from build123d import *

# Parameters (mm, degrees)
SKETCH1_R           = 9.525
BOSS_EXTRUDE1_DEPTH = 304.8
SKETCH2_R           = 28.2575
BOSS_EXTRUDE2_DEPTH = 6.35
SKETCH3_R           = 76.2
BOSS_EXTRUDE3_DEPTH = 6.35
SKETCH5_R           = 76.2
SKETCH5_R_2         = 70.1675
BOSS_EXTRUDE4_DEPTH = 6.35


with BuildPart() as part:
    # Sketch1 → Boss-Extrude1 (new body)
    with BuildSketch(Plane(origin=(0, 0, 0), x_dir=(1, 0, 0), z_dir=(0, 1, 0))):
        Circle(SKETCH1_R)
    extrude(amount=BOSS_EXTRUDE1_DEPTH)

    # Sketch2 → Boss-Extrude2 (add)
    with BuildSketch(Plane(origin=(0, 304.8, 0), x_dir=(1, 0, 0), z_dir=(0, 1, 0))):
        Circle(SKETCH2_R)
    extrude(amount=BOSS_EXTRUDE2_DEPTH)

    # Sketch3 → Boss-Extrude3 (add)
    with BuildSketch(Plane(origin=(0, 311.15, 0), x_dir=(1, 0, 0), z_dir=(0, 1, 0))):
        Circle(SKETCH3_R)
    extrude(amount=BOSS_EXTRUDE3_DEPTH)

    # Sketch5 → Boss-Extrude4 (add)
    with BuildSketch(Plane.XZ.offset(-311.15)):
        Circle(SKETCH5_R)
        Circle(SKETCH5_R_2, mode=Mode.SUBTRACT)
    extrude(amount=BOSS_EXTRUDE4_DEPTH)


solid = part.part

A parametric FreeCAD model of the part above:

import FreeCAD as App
import Part
import Sketcher

V = App.Vector
Q = App.Units.Quantity

doc = App.newDocument("Part")
body = doc.addObject("PartDesign::Body", "Body")

# Sketch on XZ plane
sketch1 = doc.addObject("Sketcher::SketchObject", "Sketch")
body.addObject(sketch1)
sketch1.AttachmentSupport = (doc.XZ_Plane, [""])
sketch1.MapMode = "FlatFace"
sketch1.addGeometry(Part.Circle(V(0, 0, 0), V(0, 0, 1), 10), False)
sketch1.addConstraint(Sketcher.Constraint("Coincident", 0, 3, -1, 1))
sketch1.addConstraint(Sketcher.Constraint("Diameter", 0, Q("0.75 in")))
pad1 = doc.addObject("PartDesign::Pad", "Pad")
body.addObject(pad1)
pad1.Profile = sketch1
pad1.Length = Q("12 in")
pad1.Reversed = True

# Sketch on XZ plane
sketch2 = doc.addObject("Sketcher::SketchObject", "Sketch001")
body.addObject(sketch2)
sketch2.AttachmentSupport = (doc.XZ_Plane, [""])
sketch2.MapMode = "FlatFace"
sketch2.AttachmentOffset = App.Placement(V(0, 0, -12 * 25.4), App.Rotation())
sketch2.addGeometry(Part.Circle(V(0, 0, 0), V(0, 0, 1), 28), False)
sketch2.addConstraint(Sketcher.Constraint("Coincident", 0, 3, -1, 1))
sketch2.addConstraint(Sketcher.Constraint("Diameter", 0, Q("2.225 in")))
pad2 = doc.addObject("PartDesign::Pad", "Pad001")
body.addObject(pad2)
pad2.Profile = sketch2
pad2.Length = Q("0.25 in")
pad2.Reversed = True

# Sketch on XZ plane
sketch3 = doc.addObject("Sketcher::SketchObject", "Sketch002")
body.addObject(sketch3)
sketch3.AttachmentSupport = (doc.XZ_Plane, [""])
sketch3.MapMode = "FlatFace"
sketch3.AttachmentOffset = App.Placement(V(0, 0, -12.25 * 25.4), App.Rotation())
sketch3.addGeometry(Part.Circle(V(0, 0, 0), V(0, 0, 1), 76), False)
sketch3.addConstraint(Sketcher.Constraint("Coincident", 0, 3, -1, 1))
sketch3.addConstraint(Sketcher.Constraint("Diameter", 0, Q("6 in")))
pad3 = doc.addObject("PartDesign::Pad", "Pad002")
body.addObject(pad3)
pad3.Profile = sketch3
pad3.Length = Q("0.25 in")
pad3.Reversed = True

# Sketch on XZ plane
sketch4 = doc.addObject("Sketcher::SketchObject", "Sketch003")
body.addObject(sketch4)
sketch4.AttachmentSupport = (doc.XZ_Plane, [""])
sketch4.MapMode = "FlatFace"
sketch4.AttachmentOffset = App.Placement(V(0, 0, -12.25 * 25.4), App.Rotation())
sketch4.addGeometry(Part.Circle(V(0, 0, 0), V(0, 0, 1), 76), False)
sketch4.addGeometry(Part.Circle(V(0, 0, 0), V(0, 0, 1), 70), False)
sketch4.addConstraint(Sketcher.Constraint("Coincident", 0, 3, -1, 1))
sketch4.addConstraint(Sketcher.Constraint("Coincident", 1, 3, -1, 1))
sketch4.addConstraint(Sketcher.Constraint("Diameter", 0, Q("6 in")))
sketch4.addConstraint(Sketcher.Constraint("Diameter", 1, Q("5.525 in")))
pad4 = doc.addObject("PartDesign::Pad", "Pad003")
body.addObject(pad4)
pad4.Profile = sketch4
pad4.Length = Q("0.25 in")

doc.recompute()
